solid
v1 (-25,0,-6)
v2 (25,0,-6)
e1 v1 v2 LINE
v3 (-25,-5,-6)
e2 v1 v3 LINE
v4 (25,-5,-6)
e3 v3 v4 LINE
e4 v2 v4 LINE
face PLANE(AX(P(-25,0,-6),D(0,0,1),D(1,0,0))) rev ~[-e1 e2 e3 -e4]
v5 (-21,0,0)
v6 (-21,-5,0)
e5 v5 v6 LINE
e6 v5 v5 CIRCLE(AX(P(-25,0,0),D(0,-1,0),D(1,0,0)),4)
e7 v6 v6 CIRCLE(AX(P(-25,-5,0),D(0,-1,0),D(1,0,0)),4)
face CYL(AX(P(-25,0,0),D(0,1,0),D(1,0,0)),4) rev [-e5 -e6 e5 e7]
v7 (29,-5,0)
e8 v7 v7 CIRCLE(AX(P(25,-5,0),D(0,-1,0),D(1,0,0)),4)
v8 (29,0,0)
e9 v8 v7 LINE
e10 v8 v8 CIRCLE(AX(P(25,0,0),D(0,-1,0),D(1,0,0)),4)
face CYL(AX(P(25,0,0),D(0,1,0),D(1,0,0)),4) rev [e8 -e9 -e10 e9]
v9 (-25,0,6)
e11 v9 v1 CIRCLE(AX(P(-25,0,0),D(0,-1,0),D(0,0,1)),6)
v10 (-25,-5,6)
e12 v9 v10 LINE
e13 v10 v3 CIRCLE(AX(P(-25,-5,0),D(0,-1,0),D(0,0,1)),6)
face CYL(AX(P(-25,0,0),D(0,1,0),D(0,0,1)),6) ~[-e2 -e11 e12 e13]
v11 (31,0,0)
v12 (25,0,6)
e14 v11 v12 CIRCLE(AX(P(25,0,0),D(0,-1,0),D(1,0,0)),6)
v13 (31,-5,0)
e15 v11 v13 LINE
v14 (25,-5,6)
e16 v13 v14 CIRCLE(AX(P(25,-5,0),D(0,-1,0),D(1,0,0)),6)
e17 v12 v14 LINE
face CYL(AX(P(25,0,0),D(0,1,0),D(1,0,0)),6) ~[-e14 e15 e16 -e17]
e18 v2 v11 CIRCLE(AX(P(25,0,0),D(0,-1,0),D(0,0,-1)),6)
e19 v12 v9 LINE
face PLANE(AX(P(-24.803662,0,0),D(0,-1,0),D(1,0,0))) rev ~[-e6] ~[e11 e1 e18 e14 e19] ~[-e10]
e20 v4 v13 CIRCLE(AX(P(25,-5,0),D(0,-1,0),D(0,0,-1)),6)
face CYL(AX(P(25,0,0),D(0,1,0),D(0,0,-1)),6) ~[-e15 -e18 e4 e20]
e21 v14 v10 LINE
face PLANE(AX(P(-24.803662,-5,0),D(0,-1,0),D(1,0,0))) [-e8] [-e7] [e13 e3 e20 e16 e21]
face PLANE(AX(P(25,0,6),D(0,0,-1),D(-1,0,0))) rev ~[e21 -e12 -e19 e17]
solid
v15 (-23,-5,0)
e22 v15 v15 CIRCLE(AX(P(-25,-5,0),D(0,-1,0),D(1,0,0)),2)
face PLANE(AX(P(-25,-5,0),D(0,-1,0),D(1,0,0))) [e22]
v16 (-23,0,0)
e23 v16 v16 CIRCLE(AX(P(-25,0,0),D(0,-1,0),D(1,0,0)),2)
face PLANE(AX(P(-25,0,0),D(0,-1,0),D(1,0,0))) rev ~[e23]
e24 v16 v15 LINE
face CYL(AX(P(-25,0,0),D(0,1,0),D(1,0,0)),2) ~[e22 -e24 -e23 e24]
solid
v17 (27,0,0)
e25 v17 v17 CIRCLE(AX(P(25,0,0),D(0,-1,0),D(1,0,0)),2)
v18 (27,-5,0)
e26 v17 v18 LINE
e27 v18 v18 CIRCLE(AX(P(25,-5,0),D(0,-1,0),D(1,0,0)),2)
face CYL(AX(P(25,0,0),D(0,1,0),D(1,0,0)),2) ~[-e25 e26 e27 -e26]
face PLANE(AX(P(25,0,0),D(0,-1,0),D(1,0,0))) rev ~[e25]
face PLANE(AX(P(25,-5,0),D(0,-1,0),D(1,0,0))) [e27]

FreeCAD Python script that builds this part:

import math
import FreeCAD as App
import Part
import Sketcher
from FreeCAD import Vector
Q = App.Units.Quantity

doc = App.newDocument("Part")
body = doc.addObject("PartDesign::Body", "Body")

# Sketch on XZ plane
sketch1 = body.newObject("Sketcher::SketchObject", "Sketch")
sketch1.AttachmentSupport = (doc.getObject("XZ_Plane"), [""])
sketch1.MapMode = "FlatFace"
sketch1.addGeometry(Part.Circle(Vector(-25, 0, 0), Vector(0, 0, 1), 2), False)
sketch1.addConstraint(Sketcher.Constraint("PointOnObject", 0, 3, -1))
sketch1.addConstraint(Sketcher.Constraint("Diameter", 0, Q("4 mm")))
sketch1.addConstraint(Sketcher.Constraint("DistanceX", 0, 3, -1, 1, Q("25 mm")))
pad1 = body.newObject("PartDesign::Pad", "Pad")
pad1.Profile = sketch1
pad1.Length = 5
body2 = doc.addObject("PartDesign::Body", "Body001")

# Sketch on XZ plane
sketch2 = body2.newObject("Sketcher::SketchObject", "Sketch001")
sketch2.AttachmentSupport = (doc.getObject("XZ_Plane001"), [""])
sketch2.MapMode = "FlatFace"
sketch2.addGeometry(Part.ArcOfCircle(Part.Circle(Vector(-25, 0, 0), Vector(0, 0, 1), 6), math.radians(90), math.radians(270)), False)
sketch2.addGeometry(Part.LineSegment(Vector(-25, -6, 0), Vector(25, -6, 0)), False)
sketch2.addGeometry(Part.ArcOfCircle(Part.Circle(Vector(25, 0, 0), Vector(0, 0, 1), 6), math.radians(-90), math.radians(0)), False)
sketch2.addGeometry(Part.ArcOfCircle(Part.Circle(Vector(25, 0, 0), Vector(0, 0, 1), 6), math.radians(0), math.radians(90)), False)
sketch2.addGeometry(Part.LineSegment(Vector(25, 6, 0), Vector(-25, 6, 0)), False)
sketch2.addGeometry(Part.Circle(Vector(-25, 0, 0), Vector(0, 0, 1), 4), False)
sketch2.addGeometry(Part.Circle(Vector(25, 0, 0), Vector(0, 0, 1), 4), False)
sketch2.addConstraint(Sketcher.Constraint("Tangent", 0, 2, 1, 1))
sketch2.addConstraint(Sketcher.Constraint("Tangent", 1, 2, 2, 1))
sketch2.addConstraint(Sketcher.Constraint("Tangent", 2, 2, 3, 1))
sketch2.addConstraint(Sketcher.Constraint("Tangent", 3, 2, 4, 1))
sketch2.addConstraint(Sketcher.Constraint("Tangent", 4, 2, 0, 1))
sketch2.addConstraint(Sketcher.Constraint("Horizontal", 1))
sketch2.addConstraint(Sketcher.Constraint("Horizontal", 4))
sketch2.addConstraint(Sketcher.Constraint("Coincident", 5, 3, 0, 3))
sketch2.addConstraint(Sketcher.Constraint("Coincident", 6, 3, 2, 3))
sketch2.addConstraint(Sketcher.Constraint("Equal", 0, 2))
sketch2.addConstraint(Sketcher.Constraint("Equal", 5, 6))
sketch2.addConstraint(Sketcher.Constraint("Symmetric", 0, 3, 2, 3, -1, 1))
sketch2.addConstraint(Sketcher.Constraint("PointOnObject", 2, 2, -1))
sketch2.addConstraint(Sketcher.Constraint("Diameter", 5, Q("8 mm")))
sketch2.addConstraint(Sketcher.Constraint("Radius", 0, Q("6 mm")))
sketch2.addConstraint(Sketcher.Constraint("DistanceX", 1, 1, 1, 2, Q("50 mm")))
pad2 = body2.newObject("PartDesign::Pad", "Pad001")
pad2.Profile = sketch2
pad2.Length = 5
body3 = doc.addObject("PartDesign::Body", "Body002")

# Sketch on XZ plane
sketch3 = body3.newObject("Sketcher::SketchObject", "Sketch002")
sketch3.AttachmentSupport = (doc.getObject("XZ_Plane002"), [""])
sketch3.MapMode = "FlatFace"
sketch3.addGeometry(Part.Circle(Vector(25, 0, 0), Vector(0, 0, 1), 2), False)
sketch3.addConstraint(Sketcher.Constraint("PointOnObject", 0, 3, -1))
sketch3.addConstraint(Sketcher.Constraint("Diameter", 0, Q("4 mm")))
sketch3.addConstraint(Sketcher.Constraint("DistanceX", -1, 1, 0, 3, Q("25 mm")))
pad3 = body3.newObject("PartDesign::Pad", "Pad002")
pad3.Profile = sketch3
pad3.Length = 5

doc.recompute()
